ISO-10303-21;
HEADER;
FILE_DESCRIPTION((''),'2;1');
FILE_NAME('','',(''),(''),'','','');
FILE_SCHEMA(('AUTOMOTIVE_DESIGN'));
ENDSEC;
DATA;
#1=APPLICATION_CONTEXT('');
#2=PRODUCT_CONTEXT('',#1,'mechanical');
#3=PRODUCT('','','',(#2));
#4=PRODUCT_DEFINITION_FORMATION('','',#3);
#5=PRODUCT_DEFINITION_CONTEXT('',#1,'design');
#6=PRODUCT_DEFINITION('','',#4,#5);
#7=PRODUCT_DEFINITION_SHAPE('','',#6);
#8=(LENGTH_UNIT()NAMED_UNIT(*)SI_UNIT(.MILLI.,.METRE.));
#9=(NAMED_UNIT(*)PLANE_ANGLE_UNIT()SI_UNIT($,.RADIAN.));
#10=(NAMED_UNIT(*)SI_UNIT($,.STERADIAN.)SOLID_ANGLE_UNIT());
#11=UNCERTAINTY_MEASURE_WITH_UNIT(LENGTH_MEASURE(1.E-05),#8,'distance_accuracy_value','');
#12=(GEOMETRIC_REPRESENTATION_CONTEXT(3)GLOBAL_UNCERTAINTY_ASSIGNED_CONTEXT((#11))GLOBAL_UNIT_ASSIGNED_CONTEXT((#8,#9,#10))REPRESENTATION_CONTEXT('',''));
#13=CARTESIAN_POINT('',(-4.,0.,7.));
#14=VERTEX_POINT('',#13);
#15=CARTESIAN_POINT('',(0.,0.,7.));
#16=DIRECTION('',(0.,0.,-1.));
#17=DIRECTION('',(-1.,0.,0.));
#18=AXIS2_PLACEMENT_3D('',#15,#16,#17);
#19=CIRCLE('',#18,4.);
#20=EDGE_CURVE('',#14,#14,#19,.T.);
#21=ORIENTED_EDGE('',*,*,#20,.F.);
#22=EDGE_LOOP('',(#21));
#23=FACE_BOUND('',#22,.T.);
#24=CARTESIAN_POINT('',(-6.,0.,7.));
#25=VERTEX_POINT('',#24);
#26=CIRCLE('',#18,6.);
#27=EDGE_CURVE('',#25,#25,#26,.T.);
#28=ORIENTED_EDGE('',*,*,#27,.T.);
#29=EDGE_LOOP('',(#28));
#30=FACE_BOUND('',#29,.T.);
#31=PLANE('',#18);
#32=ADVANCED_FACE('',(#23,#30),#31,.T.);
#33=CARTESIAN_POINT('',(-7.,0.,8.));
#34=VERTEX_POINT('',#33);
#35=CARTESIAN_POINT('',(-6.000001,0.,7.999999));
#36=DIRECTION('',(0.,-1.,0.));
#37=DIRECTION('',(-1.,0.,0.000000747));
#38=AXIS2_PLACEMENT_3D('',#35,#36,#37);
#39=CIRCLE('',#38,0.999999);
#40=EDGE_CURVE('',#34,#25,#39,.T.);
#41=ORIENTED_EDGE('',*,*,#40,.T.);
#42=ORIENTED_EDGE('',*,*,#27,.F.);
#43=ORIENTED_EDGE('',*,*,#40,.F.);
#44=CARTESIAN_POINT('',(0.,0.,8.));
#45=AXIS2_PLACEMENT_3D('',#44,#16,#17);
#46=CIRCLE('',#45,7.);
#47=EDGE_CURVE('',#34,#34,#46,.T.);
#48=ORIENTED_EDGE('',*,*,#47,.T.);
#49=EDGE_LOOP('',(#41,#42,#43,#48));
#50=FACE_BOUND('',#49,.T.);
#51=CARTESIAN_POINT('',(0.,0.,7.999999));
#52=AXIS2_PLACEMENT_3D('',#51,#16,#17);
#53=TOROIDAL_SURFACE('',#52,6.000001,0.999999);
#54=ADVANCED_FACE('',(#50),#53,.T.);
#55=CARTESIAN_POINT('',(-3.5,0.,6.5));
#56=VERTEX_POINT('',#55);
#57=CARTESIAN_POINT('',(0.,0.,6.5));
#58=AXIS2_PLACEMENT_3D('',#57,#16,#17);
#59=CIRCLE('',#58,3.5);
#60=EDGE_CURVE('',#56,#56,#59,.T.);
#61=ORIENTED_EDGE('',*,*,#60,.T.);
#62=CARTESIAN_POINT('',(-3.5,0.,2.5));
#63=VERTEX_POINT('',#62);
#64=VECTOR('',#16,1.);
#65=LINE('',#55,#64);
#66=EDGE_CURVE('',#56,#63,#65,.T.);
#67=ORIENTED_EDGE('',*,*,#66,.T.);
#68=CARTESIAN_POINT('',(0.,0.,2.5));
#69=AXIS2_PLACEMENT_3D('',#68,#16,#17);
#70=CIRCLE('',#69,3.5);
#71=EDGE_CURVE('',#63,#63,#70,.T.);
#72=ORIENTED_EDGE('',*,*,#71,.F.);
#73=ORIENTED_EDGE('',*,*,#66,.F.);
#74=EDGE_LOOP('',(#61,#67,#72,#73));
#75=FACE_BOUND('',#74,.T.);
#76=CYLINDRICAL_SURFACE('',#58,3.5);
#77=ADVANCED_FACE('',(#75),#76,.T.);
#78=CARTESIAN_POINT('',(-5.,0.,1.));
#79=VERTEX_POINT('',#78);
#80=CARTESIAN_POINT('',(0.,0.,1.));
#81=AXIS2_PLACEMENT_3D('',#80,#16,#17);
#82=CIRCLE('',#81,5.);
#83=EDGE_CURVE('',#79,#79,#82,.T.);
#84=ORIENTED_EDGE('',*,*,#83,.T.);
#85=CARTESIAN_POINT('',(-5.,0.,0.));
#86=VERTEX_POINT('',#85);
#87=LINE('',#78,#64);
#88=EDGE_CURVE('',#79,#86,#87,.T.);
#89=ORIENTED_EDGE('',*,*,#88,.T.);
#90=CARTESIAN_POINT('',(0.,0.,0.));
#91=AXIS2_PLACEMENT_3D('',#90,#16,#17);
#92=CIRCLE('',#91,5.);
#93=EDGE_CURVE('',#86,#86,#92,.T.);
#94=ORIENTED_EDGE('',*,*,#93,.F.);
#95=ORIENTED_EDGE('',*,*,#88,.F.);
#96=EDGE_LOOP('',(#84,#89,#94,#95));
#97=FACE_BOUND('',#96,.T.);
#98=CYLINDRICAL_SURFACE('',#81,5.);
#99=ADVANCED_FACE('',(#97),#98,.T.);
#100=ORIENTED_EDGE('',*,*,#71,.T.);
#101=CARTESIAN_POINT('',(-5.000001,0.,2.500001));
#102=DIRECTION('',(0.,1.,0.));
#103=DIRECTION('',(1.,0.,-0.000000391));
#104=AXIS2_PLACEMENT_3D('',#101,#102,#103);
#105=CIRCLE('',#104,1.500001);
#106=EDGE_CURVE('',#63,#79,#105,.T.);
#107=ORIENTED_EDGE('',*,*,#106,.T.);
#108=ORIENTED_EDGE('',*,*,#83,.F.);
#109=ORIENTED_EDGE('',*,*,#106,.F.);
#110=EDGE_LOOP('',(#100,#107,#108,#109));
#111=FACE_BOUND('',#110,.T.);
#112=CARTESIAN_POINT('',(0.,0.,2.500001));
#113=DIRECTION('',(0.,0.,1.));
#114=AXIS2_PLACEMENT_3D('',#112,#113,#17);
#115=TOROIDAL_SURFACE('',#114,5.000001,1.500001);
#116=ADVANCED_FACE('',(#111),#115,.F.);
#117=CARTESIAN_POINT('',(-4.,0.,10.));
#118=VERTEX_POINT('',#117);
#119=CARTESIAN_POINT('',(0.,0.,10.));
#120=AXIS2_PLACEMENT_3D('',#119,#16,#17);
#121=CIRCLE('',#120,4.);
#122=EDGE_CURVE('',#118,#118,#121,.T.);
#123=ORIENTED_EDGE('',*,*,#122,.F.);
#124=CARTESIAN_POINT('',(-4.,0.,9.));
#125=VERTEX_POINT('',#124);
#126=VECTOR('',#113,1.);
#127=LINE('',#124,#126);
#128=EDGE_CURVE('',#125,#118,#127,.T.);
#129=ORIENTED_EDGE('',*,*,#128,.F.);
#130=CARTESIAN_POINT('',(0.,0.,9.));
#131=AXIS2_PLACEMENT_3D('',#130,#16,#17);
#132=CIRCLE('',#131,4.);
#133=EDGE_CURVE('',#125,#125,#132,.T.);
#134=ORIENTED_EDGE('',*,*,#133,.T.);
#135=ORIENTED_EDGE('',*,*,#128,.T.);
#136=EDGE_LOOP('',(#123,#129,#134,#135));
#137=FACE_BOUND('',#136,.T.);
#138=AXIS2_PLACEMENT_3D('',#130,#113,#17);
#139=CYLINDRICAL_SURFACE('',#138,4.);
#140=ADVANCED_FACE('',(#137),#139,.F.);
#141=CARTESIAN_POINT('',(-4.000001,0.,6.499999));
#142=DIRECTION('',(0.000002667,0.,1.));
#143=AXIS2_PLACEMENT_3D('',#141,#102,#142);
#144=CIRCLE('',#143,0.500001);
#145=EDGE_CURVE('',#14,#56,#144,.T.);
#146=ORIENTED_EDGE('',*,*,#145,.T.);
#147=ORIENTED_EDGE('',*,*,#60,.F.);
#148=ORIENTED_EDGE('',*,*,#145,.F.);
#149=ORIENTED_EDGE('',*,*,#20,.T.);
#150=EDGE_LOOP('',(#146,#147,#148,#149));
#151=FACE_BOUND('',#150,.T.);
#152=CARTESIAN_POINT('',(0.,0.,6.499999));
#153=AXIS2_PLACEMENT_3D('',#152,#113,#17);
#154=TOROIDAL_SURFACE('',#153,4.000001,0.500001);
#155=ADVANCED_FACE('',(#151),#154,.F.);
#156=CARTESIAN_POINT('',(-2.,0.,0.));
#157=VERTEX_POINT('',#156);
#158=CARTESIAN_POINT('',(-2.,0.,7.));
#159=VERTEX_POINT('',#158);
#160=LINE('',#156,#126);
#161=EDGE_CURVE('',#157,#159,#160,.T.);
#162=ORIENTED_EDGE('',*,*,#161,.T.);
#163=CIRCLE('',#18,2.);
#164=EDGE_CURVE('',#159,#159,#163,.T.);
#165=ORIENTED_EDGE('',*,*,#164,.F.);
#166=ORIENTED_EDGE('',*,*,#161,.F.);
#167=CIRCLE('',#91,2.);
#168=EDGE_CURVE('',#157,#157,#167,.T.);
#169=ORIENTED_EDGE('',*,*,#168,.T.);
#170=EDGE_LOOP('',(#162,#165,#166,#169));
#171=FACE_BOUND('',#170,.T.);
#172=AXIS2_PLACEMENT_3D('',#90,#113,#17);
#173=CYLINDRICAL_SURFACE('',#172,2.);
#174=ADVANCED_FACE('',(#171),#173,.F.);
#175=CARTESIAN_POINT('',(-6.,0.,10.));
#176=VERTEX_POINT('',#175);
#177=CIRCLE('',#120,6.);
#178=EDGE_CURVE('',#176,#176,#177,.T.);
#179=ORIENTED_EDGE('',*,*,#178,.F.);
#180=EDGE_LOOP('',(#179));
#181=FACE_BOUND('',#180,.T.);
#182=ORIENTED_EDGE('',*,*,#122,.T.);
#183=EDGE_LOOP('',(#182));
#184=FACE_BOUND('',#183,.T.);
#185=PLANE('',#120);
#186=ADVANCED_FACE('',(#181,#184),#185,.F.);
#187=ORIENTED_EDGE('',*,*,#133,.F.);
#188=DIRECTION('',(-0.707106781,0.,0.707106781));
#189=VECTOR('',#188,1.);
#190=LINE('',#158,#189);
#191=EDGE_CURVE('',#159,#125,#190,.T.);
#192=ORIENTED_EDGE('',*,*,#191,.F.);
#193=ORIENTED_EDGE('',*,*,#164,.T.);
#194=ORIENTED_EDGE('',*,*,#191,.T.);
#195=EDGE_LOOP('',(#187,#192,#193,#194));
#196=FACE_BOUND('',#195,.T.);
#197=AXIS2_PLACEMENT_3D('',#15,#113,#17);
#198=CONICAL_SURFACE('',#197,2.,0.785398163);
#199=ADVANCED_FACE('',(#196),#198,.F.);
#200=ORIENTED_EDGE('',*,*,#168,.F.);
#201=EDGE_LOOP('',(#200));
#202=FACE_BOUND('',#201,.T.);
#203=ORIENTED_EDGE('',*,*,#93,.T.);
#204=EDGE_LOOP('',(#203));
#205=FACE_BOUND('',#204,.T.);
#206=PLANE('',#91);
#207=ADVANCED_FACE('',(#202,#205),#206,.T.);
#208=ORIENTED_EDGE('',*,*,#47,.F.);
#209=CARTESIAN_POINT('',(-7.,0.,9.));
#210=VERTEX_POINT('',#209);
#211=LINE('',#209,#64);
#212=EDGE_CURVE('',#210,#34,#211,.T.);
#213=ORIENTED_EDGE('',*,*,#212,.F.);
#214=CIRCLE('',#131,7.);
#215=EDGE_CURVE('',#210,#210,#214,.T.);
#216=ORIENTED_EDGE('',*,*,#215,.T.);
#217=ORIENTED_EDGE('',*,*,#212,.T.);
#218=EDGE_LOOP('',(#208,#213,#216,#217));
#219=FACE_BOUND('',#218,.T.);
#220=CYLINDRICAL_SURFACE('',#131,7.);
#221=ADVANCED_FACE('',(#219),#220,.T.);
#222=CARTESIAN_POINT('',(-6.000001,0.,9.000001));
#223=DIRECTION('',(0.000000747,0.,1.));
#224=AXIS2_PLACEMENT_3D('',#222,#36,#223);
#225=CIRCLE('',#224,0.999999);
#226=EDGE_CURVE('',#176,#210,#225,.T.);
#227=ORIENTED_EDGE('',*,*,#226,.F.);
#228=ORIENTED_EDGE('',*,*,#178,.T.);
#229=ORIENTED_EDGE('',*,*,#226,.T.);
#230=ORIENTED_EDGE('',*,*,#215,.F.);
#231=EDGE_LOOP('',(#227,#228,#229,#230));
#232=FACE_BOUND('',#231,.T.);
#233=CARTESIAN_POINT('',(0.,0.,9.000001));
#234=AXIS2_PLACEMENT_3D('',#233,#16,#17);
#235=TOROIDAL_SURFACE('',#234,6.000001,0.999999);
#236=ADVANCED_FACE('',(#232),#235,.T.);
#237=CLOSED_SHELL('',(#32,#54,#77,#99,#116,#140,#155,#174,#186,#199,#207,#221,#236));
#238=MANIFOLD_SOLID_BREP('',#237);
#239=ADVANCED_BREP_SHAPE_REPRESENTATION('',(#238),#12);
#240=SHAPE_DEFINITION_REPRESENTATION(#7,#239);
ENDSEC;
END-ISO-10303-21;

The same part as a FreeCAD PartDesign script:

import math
import FreeCAD as App
import Part
import Sketcher
from FreeCAD import Vector
Q = App.Units.Quantity

doc = App.newDocument("Part")
body = doc.addObject("PartDesign::Body", "Body")

sketch1 = body.newObject("Sketcher::SketchObject", "Sketch")
sketch1.AttachmentSupport = (doc.getObject("XZ_Plane"), [""])
sketch1.MapMode = "FlatFace"
sketch1.addGeometry(Part.LineSegment(Vector(-5, 0, 0), Vector(-2, 0, 0)), False)
sketch1.addGeometry(Part.LineSegment(Vector(-2, 0, 0), Vector(-2, 7, 0)), False)
sketch1.addGeometry(Part.LineSegment(Vector(-2, 7, 0), Vector(-4, 9, 0)), False)
sketch1.addGeometry(Part.LineSegment(Vector(-4, 9, 0), Vector(-4, 10, 0)), False)
sketch1.addGeometry(Part.LineSegment(Vector(-4, 10, 0), Vector(-6, 10, 0)), False)
sketch1.addGeometry(Part.ArcOfCircle(Part.Circle(Vector(-6, 9, 0), Vector(0, 0, 1), 1), math.radians(90), math.radians(180)), False)
sketch1.addGeometry(Part.LineSegment(Vector(-7, 9, 0), Vector(-7, 8, 0)), False)
sketch1.addGeometry(Part.ArcOfCircle(Part.Circle(Vector(-6, 8, 0), Vector(0, 0, 1), 1), math.radians(180), math.radians(270)), False)
sketch1.addGeometry(Part.LineSegment(Vector(-6, 7, 0), Vector(-4, 7, 0)), False)
sketch1.addGeometry(Part.ArcOfCircle(Part.Circle(Vector(-4, 6.5, 0), Vector(0, 0, 1), 0.5), math.radians(0), math.radians(90)), False)
sketch1.addGeometry(Part.LineSegment(Vector(-3.5, 6.5, 0), Vector(-3.5, 2.5, 0)), False)
sketch1.addGeometry(Part.ArcOfCircle(Part.Circle(Vector(-5, 2.5, 0), Vector(0, 0, 1), 1.5), math.radians(-90), math.radians(0)), False)
sketch1.addGeometry(Part.LineSegment(Vector(-5, 1, 0), Vector(-5, 0, 0)), False)
sketch1.addConstraint(Sketcher.Constraint("Coincident", 0, 2, 1, 1))
sketch1.addConstraint(Sketcher.Constraint("Coincident", 1, 2, 2, 1))
sketch1.addConstraint(Sketcher.Constraint("Coincident", 2, 2, 3, 1))
sketch1.addConstraint(Sketcher.Constraint("Coincident", 3, 2, 4, 1))
sketch1.addConstraint(Sketcher.Constraint("Tangent", 4, 2, 5, 1))
sketch1.addConstraint(Sketcher.Constraint("Tangent", 5, 2, 6, 1))
sketch1.addConstraint(Sketcher.Constraint("Tangent", 6, 2, 7, 1))
sketch1.addConstraint(Sketcher.Constraint("Tangent", 7, 2, 8, 1))
sketch1.addConstraint(Sketcher.Constraint("Coincident", 8, 2, 9, 2))
sketch1.addConstraint(Sketcher.Constraint("Coincident", 9, 1, 10, 1))
sketch1.addConstraint(Sketcher.Constraint("Tangent", 10, 2, 11, 2))
sketch1.addConstraint(Sketcher.Constraint("Coincident", 11, 1, 12, 1))
sketch1.addConstraint(Sketcher.Constraint("Coincident", 12, 2, 0, 1))
sketch1.addConstraint(Sketcher.Constraint("Horizontal", 0))
sketch1.addConstraint(Sketcher.Constraint("Vertical", 1))
sketch1.addConstraint(Sketcher.Constraint("Vertical", 3))
sketch1.addConstraint(Sketcher.Constraint("Horizontal", 4))
sketch1.addConstraint(Sketcher.Constraint("Vertical", 6))
sketch1.addConstraint(Sketcher.Constraint("Horizontal", 8))
sketch1.addConstraint(Sketcher.Constraint("Vertical", 10))
sketch1.addConstraint(Sketcher.Constraint("Vertical", 12))
sketch1.addConstraint(Sketcher.Constraint("Equal", 5, 7))
sketch1.addConstraint(Sketcher.Constraint("PointOnObject", 0, 2, -1))
sketch1.addConstraint(Sketcher.Constraint("Horizontal", 5, 3, 2, 2))
sketch1.addConstraint(Sketcher.Constraint("Horizontal", 1, 2, 7, 2))
sketch1.addConstraint(Sketcher.Constraint("Vertical", 9, 3, 2, 2))
sketch1.addConstraint(Sketcher.Constraint("Vertical", 3, 2, 8, 2))
sketch1.addConstraint(Sketcher.Constraint("Equal", 3, 6))
sketch1.addConstraint(Sketcher.Constraint("Equal", 6, 12))
sketch1.addConstraint(Sketcher.Constraint("Radius", 5, Q("0.999999 mm")))
sketch1.addConstraint(Sketcher.Constraint("Radius", 9, Q("0.500001 mm")))
sketch1.addConstraint(Sketcher.Constraint("Radius", 11, Q("1.500001 mm")))
sketch1.addConstraint(Sketcher.Constraint("DistanceX", 0, 1, 0, 2, Q("3 mm")))
sketch1.addConstraint(Sketcher.Constraint("DistanceX", 4, 2, 4, 1, Q("2 mm")))
sketch1.addConstraint(Sketcher.Constraint("DistanceY", 1, 1, 1, 2, Q("7 mm")))
sketch1.addConstraint(Sketcher.Constraint("DistanceY", 10, 2, 10, 1, Q("4 mm")))
sketch1.addConstraint(Sketcher.Constraint("Angle", 2, Q("135 deg")))
sketch1.addConstraint(Sketcher.Constraint("DistanceX", 5, 3, -1, 1, Q("6.000001 mm")))
revolution = body.newObject("PartDesign::Revolution", "Revolution")
revolution.Profile = sketch1
revolution.ReferenceAxis = (sketch1, ["V_Axis"])
revolution.Angle = 360

doc.recompute()
